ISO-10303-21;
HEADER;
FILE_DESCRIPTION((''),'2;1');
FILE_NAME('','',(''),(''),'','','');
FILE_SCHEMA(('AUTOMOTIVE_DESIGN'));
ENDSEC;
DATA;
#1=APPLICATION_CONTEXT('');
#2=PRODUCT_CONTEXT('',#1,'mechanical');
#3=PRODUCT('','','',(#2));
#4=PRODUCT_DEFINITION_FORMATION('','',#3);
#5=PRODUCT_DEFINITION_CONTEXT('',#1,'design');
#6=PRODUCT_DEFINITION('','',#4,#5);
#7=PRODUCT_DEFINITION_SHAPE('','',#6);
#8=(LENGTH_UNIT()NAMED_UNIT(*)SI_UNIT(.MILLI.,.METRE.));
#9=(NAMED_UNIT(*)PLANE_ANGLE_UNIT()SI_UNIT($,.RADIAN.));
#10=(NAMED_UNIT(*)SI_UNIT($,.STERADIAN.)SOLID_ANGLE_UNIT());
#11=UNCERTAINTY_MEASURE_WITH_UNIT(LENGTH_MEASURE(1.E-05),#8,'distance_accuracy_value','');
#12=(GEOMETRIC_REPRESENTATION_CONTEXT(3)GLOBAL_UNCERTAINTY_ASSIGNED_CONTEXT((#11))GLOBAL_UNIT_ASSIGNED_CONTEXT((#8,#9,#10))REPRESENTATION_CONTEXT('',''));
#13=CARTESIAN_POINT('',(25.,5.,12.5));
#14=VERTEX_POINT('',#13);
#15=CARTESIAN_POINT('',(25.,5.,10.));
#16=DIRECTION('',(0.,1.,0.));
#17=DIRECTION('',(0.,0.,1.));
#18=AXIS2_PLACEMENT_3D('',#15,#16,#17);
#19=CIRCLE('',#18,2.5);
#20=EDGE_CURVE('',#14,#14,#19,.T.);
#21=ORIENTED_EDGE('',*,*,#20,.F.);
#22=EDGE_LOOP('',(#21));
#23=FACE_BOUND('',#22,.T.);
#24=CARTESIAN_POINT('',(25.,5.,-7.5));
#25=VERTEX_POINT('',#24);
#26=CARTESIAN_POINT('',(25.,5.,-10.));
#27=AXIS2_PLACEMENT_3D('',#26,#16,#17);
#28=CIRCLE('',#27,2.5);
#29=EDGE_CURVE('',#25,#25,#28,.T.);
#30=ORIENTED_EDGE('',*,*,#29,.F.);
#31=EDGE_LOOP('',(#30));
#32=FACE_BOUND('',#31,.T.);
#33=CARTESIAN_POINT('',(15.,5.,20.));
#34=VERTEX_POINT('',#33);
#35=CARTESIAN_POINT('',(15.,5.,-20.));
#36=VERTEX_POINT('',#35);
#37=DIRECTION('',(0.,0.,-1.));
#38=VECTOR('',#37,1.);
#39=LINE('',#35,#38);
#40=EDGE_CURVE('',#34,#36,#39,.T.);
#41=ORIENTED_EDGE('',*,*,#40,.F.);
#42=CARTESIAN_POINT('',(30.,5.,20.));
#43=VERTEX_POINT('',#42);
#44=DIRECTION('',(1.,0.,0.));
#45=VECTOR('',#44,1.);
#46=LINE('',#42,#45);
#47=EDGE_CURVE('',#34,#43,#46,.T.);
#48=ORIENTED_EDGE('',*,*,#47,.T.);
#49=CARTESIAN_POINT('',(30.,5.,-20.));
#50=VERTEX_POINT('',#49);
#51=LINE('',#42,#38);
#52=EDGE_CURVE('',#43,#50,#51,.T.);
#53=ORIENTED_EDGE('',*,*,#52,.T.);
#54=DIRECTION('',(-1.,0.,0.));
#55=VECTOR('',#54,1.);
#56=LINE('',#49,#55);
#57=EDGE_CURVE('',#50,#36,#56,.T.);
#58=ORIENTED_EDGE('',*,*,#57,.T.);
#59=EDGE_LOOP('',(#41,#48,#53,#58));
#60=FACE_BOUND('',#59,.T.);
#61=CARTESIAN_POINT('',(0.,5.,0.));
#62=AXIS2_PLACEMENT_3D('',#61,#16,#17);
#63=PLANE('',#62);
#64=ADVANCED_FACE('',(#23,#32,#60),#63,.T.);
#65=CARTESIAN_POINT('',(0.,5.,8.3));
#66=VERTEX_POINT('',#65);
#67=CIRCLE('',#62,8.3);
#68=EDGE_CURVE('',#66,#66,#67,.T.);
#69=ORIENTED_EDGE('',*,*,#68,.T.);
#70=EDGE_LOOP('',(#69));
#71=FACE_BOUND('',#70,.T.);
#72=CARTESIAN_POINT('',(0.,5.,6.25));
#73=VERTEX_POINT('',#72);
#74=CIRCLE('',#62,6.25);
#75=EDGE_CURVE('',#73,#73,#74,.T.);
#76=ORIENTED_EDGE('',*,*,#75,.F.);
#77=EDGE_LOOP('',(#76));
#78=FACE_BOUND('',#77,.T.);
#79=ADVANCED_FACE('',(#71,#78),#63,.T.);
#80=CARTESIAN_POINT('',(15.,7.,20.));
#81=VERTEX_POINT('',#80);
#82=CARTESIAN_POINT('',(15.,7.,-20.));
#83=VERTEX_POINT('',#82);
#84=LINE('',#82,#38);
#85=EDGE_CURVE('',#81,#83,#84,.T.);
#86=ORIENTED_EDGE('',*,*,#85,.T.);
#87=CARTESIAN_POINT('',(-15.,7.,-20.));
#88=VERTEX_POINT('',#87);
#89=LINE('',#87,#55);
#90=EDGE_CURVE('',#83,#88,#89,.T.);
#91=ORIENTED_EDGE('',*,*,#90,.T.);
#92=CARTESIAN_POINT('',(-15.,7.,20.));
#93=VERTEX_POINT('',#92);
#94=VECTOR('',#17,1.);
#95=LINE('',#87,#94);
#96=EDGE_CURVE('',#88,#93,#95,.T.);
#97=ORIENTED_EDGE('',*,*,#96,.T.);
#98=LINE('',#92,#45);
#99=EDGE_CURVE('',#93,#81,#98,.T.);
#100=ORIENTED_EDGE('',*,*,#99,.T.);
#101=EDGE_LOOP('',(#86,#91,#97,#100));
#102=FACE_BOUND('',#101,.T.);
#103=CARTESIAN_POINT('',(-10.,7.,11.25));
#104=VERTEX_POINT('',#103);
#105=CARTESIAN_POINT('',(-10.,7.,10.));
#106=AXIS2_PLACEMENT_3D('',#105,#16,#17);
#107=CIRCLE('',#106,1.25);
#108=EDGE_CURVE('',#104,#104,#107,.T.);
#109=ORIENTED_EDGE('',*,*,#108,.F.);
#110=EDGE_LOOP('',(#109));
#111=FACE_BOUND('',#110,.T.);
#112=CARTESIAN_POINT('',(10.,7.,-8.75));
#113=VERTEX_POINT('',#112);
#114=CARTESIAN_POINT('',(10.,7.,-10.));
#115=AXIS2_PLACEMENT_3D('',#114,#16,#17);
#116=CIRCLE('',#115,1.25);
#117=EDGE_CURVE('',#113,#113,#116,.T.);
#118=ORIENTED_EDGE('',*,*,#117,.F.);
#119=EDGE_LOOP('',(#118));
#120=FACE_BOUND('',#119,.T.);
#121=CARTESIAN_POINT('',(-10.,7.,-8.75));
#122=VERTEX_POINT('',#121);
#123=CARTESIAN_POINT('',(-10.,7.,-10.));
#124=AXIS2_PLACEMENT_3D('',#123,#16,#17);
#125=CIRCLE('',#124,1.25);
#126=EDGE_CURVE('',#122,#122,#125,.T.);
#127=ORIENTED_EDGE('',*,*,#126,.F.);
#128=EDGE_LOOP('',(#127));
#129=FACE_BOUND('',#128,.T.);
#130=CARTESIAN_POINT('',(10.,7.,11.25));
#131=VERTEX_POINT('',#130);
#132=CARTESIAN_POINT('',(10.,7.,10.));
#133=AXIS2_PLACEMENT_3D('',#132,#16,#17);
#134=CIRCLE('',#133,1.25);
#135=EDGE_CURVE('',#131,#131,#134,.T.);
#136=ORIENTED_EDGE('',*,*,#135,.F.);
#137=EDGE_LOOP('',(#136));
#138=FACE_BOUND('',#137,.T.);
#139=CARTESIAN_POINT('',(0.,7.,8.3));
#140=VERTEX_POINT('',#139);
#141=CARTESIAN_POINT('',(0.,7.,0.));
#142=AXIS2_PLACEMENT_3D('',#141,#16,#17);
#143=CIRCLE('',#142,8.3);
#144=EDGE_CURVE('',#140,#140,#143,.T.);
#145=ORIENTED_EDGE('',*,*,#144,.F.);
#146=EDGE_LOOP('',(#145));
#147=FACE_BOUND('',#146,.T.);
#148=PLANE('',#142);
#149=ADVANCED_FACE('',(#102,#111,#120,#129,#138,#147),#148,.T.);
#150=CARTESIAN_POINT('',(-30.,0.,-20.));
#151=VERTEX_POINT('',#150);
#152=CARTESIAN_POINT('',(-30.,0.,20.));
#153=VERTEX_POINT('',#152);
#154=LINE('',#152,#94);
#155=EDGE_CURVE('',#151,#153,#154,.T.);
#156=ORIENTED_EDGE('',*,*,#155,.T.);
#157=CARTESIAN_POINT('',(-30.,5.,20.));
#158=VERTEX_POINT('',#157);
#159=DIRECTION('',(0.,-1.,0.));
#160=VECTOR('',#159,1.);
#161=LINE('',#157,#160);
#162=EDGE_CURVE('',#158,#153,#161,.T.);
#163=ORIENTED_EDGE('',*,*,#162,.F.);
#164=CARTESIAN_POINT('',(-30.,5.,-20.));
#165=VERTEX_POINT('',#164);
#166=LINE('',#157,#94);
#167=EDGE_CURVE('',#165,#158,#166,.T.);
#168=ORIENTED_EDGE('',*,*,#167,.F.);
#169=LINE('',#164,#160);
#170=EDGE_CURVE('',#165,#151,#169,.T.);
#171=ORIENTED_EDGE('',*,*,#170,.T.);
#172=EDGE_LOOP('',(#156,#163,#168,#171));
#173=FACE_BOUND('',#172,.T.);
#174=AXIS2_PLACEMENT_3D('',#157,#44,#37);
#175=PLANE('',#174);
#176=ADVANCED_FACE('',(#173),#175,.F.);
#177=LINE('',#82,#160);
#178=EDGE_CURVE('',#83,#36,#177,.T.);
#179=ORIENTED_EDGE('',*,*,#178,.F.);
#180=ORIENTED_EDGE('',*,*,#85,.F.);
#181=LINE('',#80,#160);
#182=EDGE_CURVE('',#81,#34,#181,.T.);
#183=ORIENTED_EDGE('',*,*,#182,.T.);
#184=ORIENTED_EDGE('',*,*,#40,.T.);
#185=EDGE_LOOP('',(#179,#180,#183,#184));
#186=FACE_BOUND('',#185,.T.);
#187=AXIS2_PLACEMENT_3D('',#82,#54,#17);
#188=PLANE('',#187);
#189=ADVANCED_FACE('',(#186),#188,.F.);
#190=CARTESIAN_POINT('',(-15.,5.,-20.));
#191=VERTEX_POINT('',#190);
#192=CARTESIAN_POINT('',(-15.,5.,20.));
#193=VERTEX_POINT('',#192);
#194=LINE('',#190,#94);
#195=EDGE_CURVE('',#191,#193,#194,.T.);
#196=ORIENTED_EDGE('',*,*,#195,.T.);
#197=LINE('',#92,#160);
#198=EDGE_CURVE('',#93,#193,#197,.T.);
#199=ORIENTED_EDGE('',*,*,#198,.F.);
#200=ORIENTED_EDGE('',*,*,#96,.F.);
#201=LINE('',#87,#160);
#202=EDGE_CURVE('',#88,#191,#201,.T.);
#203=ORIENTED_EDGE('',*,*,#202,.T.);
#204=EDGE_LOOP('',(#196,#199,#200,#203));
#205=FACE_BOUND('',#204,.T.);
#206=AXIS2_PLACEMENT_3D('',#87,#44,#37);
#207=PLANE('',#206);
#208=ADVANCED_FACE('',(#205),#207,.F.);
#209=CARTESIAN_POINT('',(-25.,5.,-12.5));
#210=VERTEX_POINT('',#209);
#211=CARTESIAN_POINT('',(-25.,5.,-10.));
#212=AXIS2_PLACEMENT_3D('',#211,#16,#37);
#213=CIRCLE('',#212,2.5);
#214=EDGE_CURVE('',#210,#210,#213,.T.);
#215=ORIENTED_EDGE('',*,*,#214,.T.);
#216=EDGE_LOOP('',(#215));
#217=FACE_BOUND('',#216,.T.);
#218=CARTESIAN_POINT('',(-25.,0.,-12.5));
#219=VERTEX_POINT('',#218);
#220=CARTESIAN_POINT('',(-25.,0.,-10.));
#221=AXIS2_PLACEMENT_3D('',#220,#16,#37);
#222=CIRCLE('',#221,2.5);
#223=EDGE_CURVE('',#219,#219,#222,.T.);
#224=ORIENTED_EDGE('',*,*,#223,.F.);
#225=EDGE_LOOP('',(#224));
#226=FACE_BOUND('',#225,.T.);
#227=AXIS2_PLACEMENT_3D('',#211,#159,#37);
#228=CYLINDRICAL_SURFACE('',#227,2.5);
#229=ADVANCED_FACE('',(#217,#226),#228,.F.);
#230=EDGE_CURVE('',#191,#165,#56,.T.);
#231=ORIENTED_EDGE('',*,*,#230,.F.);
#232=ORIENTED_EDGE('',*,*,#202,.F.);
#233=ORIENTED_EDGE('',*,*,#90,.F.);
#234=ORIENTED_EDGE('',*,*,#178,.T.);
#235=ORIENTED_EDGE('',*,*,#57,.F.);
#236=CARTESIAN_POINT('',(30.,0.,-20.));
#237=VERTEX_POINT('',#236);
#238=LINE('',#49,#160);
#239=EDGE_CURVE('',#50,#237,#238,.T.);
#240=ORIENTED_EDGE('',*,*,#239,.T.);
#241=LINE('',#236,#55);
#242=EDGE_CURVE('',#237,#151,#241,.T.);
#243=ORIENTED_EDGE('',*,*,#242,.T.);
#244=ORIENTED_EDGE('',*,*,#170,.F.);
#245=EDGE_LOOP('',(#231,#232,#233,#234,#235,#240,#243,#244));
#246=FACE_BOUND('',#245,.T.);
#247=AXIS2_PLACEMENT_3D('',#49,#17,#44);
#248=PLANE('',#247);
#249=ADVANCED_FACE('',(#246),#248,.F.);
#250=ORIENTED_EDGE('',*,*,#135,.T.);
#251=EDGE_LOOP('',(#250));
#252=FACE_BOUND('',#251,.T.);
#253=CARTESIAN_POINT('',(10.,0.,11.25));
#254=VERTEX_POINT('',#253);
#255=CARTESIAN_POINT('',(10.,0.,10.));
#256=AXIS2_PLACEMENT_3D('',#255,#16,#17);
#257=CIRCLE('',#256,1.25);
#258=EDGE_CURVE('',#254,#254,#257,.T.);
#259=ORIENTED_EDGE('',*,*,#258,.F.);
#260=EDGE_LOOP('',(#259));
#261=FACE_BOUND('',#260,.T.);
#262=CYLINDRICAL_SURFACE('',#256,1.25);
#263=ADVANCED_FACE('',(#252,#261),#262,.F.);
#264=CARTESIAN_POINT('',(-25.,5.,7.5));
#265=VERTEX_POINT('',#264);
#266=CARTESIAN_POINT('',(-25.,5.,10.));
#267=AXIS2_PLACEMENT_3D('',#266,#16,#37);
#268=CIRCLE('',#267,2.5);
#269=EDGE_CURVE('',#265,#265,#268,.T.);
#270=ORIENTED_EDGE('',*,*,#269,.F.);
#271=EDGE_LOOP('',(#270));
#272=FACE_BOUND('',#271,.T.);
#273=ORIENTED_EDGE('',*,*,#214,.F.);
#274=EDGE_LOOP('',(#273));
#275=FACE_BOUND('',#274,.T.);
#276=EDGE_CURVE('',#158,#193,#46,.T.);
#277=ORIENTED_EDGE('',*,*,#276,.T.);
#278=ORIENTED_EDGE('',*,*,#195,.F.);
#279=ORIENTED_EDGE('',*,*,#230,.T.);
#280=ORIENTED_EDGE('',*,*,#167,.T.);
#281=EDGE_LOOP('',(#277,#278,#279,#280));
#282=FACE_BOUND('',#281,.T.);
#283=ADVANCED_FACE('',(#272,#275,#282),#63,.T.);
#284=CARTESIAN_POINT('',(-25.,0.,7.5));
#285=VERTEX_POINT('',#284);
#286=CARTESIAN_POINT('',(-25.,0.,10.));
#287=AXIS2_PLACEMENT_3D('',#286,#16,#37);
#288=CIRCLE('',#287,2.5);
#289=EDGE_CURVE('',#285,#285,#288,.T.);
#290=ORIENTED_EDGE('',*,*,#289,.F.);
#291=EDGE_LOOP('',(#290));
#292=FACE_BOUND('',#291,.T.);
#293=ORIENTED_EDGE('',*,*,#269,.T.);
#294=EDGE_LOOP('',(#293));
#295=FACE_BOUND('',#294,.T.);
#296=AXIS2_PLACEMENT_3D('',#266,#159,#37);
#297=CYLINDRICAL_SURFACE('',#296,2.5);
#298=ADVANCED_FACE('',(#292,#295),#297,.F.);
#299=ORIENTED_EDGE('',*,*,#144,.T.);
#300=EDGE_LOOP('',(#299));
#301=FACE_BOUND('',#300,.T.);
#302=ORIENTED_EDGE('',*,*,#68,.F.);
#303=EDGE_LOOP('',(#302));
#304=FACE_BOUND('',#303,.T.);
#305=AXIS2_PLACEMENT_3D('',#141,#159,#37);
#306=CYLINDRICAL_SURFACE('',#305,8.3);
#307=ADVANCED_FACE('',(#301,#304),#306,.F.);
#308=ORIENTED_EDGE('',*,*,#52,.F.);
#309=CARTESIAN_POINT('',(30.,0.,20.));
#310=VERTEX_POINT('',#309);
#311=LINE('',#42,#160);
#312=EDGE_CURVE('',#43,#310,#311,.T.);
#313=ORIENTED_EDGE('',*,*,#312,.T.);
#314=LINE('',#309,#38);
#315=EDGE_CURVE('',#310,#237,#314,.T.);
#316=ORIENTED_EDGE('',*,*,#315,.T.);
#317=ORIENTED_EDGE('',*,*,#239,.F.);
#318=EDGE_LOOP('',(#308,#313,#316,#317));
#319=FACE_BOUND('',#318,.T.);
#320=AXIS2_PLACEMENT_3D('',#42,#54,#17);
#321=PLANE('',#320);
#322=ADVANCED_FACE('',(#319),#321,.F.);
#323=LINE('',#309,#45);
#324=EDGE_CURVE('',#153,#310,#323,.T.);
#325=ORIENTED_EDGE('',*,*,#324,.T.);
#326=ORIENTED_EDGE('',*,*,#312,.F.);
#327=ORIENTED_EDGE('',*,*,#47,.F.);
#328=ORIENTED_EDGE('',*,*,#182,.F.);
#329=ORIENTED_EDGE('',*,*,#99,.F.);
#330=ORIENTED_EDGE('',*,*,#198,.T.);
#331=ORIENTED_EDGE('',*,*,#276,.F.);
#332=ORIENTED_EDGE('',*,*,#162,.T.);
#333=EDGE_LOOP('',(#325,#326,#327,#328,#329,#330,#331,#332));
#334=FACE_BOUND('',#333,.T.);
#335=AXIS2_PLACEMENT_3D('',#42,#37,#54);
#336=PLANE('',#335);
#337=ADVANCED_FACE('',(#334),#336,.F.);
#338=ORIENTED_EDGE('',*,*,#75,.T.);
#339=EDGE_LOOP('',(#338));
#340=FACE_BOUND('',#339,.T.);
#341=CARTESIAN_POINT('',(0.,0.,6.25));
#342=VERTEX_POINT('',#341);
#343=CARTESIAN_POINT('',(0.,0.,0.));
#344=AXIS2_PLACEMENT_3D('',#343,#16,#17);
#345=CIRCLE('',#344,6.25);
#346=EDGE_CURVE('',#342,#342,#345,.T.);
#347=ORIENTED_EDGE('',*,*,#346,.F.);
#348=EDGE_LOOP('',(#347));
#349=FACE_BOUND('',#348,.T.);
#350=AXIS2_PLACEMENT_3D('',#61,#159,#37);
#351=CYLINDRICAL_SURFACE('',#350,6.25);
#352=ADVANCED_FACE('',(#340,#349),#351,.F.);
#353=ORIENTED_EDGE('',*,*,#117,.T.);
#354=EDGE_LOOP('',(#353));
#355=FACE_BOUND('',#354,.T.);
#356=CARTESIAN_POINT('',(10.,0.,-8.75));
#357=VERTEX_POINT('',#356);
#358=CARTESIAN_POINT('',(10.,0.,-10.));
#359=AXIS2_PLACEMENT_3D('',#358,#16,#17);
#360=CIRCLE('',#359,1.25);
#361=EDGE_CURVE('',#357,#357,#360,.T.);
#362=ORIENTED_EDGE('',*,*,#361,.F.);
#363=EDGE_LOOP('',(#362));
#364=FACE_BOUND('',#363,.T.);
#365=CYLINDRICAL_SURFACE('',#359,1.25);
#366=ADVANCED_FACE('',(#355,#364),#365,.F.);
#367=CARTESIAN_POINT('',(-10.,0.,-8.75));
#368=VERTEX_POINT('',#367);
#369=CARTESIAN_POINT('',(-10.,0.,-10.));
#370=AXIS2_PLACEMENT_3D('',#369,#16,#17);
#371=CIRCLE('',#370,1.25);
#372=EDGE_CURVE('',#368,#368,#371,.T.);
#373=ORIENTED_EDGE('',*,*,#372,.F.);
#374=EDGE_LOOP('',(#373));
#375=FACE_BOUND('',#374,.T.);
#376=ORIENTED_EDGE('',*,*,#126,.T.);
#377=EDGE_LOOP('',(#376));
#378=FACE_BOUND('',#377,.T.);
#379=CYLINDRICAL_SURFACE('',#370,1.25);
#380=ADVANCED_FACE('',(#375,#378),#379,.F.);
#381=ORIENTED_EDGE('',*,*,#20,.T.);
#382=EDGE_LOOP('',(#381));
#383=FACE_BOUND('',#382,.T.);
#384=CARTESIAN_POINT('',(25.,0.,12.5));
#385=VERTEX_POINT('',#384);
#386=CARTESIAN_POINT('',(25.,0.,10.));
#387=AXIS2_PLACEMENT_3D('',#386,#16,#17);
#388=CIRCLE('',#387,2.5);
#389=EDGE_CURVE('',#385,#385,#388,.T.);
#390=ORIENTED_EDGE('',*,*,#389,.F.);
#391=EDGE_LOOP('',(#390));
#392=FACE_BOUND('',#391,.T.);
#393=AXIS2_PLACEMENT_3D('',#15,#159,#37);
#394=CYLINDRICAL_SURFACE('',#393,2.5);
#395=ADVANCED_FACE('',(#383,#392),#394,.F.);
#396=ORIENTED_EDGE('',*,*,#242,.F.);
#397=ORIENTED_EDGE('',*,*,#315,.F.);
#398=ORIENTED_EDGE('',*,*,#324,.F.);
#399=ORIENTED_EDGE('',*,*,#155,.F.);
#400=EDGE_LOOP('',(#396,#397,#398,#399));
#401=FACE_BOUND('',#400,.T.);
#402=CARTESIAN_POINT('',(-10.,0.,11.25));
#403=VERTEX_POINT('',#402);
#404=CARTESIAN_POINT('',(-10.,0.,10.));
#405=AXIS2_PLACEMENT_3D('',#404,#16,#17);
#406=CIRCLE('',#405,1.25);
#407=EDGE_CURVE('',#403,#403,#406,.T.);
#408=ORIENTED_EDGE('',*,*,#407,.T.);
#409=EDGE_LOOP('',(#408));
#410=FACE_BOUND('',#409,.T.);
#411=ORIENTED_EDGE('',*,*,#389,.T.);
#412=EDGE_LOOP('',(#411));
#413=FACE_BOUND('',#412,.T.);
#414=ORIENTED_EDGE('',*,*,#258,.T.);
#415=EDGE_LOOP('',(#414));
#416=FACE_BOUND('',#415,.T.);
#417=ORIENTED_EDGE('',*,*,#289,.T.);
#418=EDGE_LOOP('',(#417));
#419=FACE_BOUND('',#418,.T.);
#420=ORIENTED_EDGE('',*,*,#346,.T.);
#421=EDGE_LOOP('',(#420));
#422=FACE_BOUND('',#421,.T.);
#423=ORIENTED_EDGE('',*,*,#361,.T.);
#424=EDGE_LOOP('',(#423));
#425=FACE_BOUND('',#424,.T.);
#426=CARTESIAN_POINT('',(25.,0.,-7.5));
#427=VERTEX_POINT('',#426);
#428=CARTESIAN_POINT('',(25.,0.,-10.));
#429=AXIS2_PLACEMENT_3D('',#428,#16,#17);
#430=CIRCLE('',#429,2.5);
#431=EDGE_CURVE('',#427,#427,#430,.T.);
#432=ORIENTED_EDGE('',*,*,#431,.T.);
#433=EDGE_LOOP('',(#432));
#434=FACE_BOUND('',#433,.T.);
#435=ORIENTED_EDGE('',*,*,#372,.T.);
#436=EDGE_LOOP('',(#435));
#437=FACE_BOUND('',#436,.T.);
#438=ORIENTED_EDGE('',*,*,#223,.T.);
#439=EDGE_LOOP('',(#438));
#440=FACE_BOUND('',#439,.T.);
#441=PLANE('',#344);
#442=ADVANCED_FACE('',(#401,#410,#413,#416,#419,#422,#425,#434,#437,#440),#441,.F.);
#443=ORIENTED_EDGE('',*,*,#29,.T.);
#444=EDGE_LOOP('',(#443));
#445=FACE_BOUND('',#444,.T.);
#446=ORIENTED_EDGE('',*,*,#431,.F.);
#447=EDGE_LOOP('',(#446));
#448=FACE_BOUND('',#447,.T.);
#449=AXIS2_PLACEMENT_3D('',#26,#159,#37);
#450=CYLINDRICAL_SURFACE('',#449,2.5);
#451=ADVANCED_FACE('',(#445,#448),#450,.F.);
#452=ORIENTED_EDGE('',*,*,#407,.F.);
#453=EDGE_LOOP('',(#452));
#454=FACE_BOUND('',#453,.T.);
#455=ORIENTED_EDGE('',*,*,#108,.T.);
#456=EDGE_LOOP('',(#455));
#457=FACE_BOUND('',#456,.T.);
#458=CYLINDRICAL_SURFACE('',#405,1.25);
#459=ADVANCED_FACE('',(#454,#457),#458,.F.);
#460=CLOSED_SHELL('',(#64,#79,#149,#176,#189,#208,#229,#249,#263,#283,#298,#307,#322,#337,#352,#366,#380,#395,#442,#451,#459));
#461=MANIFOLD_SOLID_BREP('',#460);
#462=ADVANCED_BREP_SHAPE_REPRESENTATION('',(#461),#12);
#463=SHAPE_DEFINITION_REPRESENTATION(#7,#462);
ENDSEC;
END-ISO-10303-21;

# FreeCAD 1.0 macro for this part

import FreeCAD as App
import Part
import Sketcher

V = App.Vector


def add_polygon(sketch, points):
    """Adds a closed chain of lines whose ends are joined by coincident constraints."""
    first, n = sketch.GeometryCount, len(points)
    for a, b in zip(points, points[1:] + points[:1]):
        sketch.addGeometry(Part.LineSegment(App.Vector(*a, 0), App.Vector(*b, 0)), False)
    for i in range(n):
        sketch.addConstraint(Sketcher.Constraint("Coincident", first + i, 2, first + (i + 1) % n, 1))

doc = App.newDocument("Part")
params = doc.addObject("Spreadsheet::Sheet", "Params")
for row, (alias, value) in enumerate([
    ("sketch1_diameter", "5 mm"),
    ("sketch1_diameter2", "12.5 mm"),
    ("sketch1_width", "60 mm"),
    ("sketch1_height", "40 mm"),
    ("pad1_length", "5 mm"),
    ("sketch2_diameter", "16.6 mm"),
    ("sketch2_width", "30 mm"),
    ("sketch2_height", "40 mm"),
    ("pad2_length", "2 mm"),
    ("sketch3_diameter", "2.5 mm"),
], start=1):
    params.set(f"A{row}", alias)
    params.set(f"B{row}", "=" + value)
    params.setAlias(f"B{row}", alias)

body = doc.addObject("PartDesign::Body", "Body")

# Sketch on XZ plane
sketch1 = body.newObject("Sketcher::SketchObject", "Sketch")
sketch1.AttachmentSupport = (doc.getObject("XZ_Plane"), [""])
sketch1.MapMode = "FlatFace"
add_polygon(sketch1, [(-30, -20), (-30, 20), (30, 20), (30, -20)])  # lines 0-3
sketch1.addGeometry(Part.Circle(V(-25, 10, 0), V(0, 0, 1), 2.5), False)  # 4
sketch1.addGeometry(Part.Circle(V(25, 10, 0), V(0, 0, 1), 2.5), False)  # 5
sketch1.addGeometry(Part.Circle(V(-25, -10, 0), V(0, 0, 1), 2.5), False)  # 6
sketch1.addGeometry(Part.Circle(V(0, 0, 0), V(0, 0, 1), 6.2), False)  # 7
sketch1.addGeometry(Part.Circle(V(25, -10, 0), V(0, 0, 1), 2.5), False)  # 8
sketch1.addConstraint([
    Sketcher.Constraint("Vertical", 0),
    Sketcher.Constraint("Horizontal", 1),
    Sketcher.Constraint("Vertical", 2),
    Sketcher.Constraint("Horizontal", 3),
    Sketcher.Constraint("Coincident", 7, 3, -1, 1),
    Sketcher.Constraint("Equal", 4, 5),
    Sketcher.Constraint("Equal", 5, 6),
    Sketcher.Constraint("Equal", 6, 8),
    Sketcher.Constraint("Symmetric", 5, 3, 6, 3, -1, 1),
    Sketcher.Constraint("Symmetric", 4, 3, 8, 3, -1, 1),
    Sketcher.Constraint("Symmetric", 0, 2, 2, 2, -1, 1),
    Sketcher.Constraint("Symmetric", 4, 3, 5, 3, -2),
    Sketcher.Constraint("Diameter", 4, 5.0),
    Sketcher.Constraint("Diameter", 7, 12.5),
    Sketcher.Constraint("DistanceX", 1, 1, 1, 2, 60.0),
    Sketcher.Constraint("DistanceY", 0, 1, 0, 2, 40.0),
    Sketcher.Constraint("DistanceX", 4, 3, -1, 1, 25.0),
    Sketcher.Constraint("DistanceY", -1, 1, 4, 3, 10.0),
])
sketch1.setExpression("Constraints[16]", "Params.sketch1_diameter")
sketch1.setExpression("Constraints[17]", "Params.sketch1_diameter2")
sketch1.setExpression("Constraints[18]", "Params.sketch1_width")
sketch1.setExpression("Constraints[19]", "Params.sketch1_height")
pad1 = body.newObject("PartDesign::Pad", "Pad")
pad1.Profile = sketch1
pad1.setExpression("Length", "Params.pad1_length")
pad1.Reversed = True

# Sketch on XZ plane
sketch2 = body.newObject("Sketcher::SketchObject", "Sketch001")
sketch2.AttachmentSupport = (doc.getObject("XZ_Plane"), [""])
sketch2.MapMode = "FlatFace"
sketch2.AttachmentOffset = App.Placement(V(0, 0, -5), App.Rotation())
add_polygon(sketch2, [(-15, -20), (-15, 20), (15, 20), (15, -20)])  # lines 0-3
sketch2.addGeometry(Part.Circle(V(0, 0, 0), V(0, 0, 1), 8), False)  # 4
sketch2.addConstraint([
    Sketcher.Constraint("Vertical", 0),
    Sketcher.Constraint("Horizontal", 1),
    Sketcher.Constraint("Vertical", 2),
    Sketcher.Constraint("Horizontal", 3),
    Sketcher.Constraint("Coincident", 4, 3, -1, 1),
    Sketcher.Constraint("Symmetric", 0, 2, 2, 2, -1, 1),
    Sketcher.Constraint("Diameter", 4, 16.6),
    Sketcher.Constraint("DistanceX", 1, 1, 1, 2, 30.0),
    Sketcher.Constraint("DistanceY", 0, 1, 0, 2, 40.0),
])
sketch2.setExpression("Constraints[10]", "Params.sketch2_diameter")
sketch2.setExpression("Constraints[11]", "Params.sketch2_width")
sketch2.setExpression("Constraints[12]", "Params.sketch2_height")
pad2 = body.newObject("PartDesign::Pad", "Pad001")
pad2.Profile = sketch2
pad2.setExpression("Length", "Params.pad2_length")
pad2.Reversed = True

# Sketch on XZ plane
sketch3 = body.newObject("Sketcher::SketchObject", "Sketch002")
sketch3.AttachmentSupport = (doc.getObject("XZ_Plane"), [""])
sketch3.MapMode = "FlatFace"
sketch3.AttachmentOffset = App.Placement(V(0, 0, -7), App.Rotation())
sketch3.addGeometry([
    Part.Circle(V(-10, -10, 0), V(0, 0, 1), 1.2),
    Part.Circle(V(10, -10, 0), V(0, 0, 1), 1.2),
    Part.Circle(V(10, 10, 0), V(0, 0, 1), 1.2),
    Part.Circle(V(-10, 10, 0), V(0, 0, 1), 1.2),
], False)
sketch3.addConstraint([
    Sketcher.Constraint("Equal", 0, 1),
    Sketcher.Constraint("Equal", 1, 2),
    Sketcher.Constraint("Equal", 2, 3),
    Sketcher.Constraint("Symmetric", 0, 3, 2, 3, -1, 1),
    Sketcher.Constraint("Symmetric", 1, 3, 3, 3, -1, 1),
    Sketcher.Constraint("Symmetric", 0, 3, 1, 3, -2),
    Sketcher.Constraint("Diameter", 0, 2.5),
    Sketcher.Constraint("DistanceX", 0, 3, -1, 1, 10.0),
    Sketcher.Constraint("DistanceY", 0, 3, -1, 1, 10.0),
])
sketch3.setExpression("Constraints[6]", "Params.sketch3_diameter")
pocket1 = body.newObject("PartDesign::Pocket", "Pocket")
pocket1.Profile = sketch3
pocket1.Type = "ThroughAll"
pocket1.Reversed = True

doc.recompute()
